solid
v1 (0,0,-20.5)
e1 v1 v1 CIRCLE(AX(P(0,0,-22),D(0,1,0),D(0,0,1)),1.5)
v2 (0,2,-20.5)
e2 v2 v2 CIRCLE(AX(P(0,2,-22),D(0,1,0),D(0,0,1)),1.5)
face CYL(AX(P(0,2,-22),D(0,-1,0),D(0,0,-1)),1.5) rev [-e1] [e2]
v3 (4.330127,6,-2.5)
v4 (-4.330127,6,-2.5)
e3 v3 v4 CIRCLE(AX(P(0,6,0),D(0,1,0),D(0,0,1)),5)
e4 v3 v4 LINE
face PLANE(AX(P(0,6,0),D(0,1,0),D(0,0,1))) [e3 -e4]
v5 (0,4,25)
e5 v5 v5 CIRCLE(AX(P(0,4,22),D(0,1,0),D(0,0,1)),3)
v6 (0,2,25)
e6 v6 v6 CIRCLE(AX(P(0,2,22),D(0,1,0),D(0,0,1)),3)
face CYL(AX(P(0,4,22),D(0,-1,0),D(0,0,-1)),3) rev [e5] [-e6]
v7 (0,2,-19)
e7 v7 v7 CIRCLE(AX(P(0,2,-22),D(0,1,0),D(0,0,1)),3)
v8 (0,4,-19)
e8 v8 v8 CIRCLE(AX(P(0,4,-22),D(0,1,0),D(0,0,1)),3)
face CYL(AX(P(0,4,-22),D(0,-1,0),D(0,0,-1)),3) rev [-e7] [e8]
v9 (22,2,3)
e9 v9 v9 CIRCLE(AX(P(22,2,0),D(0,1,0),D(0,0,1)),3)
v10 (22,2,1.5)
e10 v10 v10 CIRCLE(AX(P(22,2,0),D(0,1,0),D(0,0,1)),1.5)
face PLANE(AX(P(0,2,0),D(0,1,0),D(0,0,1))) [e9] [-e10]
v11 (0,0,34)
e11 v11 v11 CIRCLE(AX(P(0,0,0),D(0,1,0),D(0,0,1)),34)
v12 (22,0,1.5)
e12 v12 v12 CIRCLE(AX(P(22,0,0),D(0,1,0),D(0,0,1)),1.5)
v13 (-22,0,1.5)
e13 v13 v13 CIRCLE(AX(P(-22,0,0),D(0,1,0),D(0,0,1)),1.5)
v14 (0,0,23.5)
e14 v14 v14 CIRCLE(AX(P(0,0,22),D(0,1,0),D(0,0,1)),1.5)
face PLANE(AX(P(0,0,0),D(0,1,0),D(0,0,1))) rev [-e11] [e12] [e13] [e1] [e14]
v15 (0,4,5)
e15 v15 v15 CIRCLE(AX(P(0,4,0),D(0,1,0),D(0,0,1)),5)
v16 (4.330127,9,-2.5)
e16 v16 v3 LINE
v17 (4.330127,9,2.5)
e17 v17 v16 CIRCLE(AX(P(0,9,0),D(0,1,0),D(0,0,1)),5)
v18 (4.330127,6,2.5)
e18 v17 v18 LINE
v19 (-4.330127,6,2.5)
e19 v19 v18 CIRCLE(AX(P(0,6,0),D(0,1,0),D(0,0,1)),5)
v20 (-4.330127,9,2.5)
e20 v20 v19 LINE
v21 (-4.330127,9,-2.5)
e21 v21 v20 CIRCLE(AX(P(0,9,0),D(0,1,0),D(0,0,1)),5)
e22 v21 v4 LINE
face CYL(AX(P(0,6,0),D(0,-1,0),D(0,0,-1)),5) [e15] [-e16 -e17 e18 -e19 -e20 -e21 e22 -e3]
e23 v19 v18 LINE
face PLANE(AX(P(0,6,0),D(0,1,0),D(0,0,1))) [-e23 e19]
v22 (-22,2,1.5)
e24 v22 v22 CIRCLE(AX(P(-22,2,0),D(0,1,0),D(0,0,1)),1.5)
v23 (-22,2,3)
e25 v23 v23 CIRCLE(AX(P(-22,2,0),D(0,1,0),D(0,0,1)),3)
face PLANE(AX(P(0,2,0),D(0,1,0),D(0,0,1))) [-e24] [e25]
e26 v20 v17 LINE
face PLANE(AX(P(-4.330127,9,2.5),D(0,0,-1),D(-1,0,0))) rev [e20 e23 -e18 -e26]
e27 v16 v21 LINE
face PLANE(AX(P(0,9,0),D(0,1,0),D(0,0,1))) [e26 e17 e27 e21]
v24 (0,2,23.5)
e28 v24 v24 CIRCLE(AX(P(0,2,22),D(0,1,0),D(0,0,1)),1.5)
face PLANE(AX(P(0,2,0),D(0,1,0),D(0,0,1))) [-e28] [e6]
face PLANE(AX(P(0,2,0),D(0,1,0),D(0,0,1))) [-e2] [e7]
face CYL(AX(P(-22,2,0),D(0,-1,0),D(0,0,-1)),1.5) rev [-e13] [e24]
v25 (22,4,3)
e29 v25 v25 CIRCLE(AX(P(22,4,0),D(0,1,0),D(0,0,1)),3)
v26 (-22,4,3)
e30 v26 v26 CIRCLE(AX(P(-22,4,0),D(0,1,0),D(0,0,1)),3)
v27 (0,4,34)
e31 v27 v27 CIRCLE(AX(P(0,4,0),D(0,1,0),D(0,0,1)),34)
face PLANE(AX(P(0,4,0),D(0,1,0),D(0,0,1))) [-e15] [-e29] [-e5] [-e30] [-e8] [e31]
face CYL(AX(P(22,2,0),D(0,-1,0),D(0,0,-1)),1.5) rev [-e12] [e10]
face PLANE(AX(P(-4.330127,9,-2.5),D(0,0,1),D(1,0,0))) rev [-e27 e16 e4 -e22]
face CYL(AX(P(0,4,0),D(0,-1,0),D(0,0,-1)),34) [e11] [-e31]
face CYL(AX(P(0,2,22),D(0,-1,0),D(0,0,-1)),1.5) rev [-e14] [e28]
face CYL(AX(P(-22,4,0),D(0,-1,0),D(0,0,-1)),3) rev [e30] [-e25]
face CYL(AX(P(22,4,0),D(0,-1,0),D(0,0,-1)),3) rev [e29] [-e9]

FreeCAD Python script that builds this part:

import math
import FreeCAD as App
import Part
import Sketcher
from FreeCAD import Vector
Q = App.Units.Quantity

doc = App.newDocument("Part")
body = doc.addObject("PartDesign::Body", "Body")

# Sketch on XZ plane
sketch1 = body.newObject("Sketcher::SketchObject", "Sketch")
sketch1.AttachmentSupport = (doc.getObject("XZ_Plane"), [""])
sketch1.MapMode = "FlatFace"
sketch1.addGeometry(Part.Circle(Vector(0, 0, 0), Vector(0, 0, 1), 34), False)
sketch1.addGeometry(Part.Circle(Vector(0, 22, 0), Vector(0, 0, 1), 3), False)
sketch1.addGeometry(Part.Circle(Vector(-22, 0, 0), Vector(0, 0, 1), 3), False)
sketch1.addGeometry(Part.Circle(Vector(22, 0, 0), Vector(0, 0, 1), 3), False)
sketch1.addGeometry(Part.Circle(Vector(0, -22, 0), Vector(0, 0, 1), 3), False)
sketch1.addConstraint(Sketcher.Constraint("Coincident", 0, 3, -1, 1))
sketch1.addConstraint(Sketcher.Constraint("Equal", 1, 2))
sketch1.addConstraint(Sketcher.Constraint("Equal", 2, 3))
sketch1.addConstraint(Sketcher.Constraint("Equal", 3, 4))
sketch1.addConstraint(Sketcher.Constraint("Symmetric", 2, 3, 3, 3, -1, 1))
sketch1.addConstraint(Sketcher.Constraint("Symmetric", 1, 3, 4, 3, -1, 1))
sketch1.addConstraint(Sketcher.Constraint("PointOnObject", 1, 3, -2))
sketch1.addConstraint(Sketcher.Constraint("PointOnObject", 2, 3, -1))
sketch1.addConstraint(Sketcher.Constraint("Diameter", 0, Q("68 mm")))
sketch1.addConstraint(Sketcher.Constraint("Diameter", 1, Q("6 mm")))
sketch1.addConstraint(Sketcher.Constraint("DistanceY", -1, 1, 1, 3, Q("22 mm")))
sketch1.addConstraint(Sketcher.Constraint("DistanceX", 2, 3, -1, 1, Q("22 mm")))
pad1 = body.newObject("PartDesign::Pad", "Pad")
pad1.Profile = sketch1
pad1.Length = 4
pad1.Reversed = True

# Sketch on XZ plane
sketch2 = body.newObject("Sketcher::SketchObject", "Sketch001")
sketch2.AttachmentSupport = (doc.getObject("XZ_Plane"), [""])
sketch2.MapMode = "FlatFace"
sketch2.addGeometry(Part.Circle(Vector(0, -22, 0), Vector(0, 0, 1), 3), False)
sketch2.addGeometry(Part.Circle(Vector(0, -22, 0), Vector(0, 0, 1), 1.5), False)
sketch2.addGeometry(Part.Circle(Vector(22, 0, 0), Vector(0, 0, 1), 3), False)
sketch2.addGeometry(Part.Circle(Vector(22, 0, 0), Vector(0, 0, 1), 1.5), False)
sketch2.addGeometry(Part.Circle(Vector(0, 22, 0), Vector(0, 0, 1), 3), False)
sketch2.addGeometry(Part.Circle(Vector(0, 22, 0), Vector(0, 0, 1), 1.5), False)
sketch2.addGeometry(Part.Circle(Vector(-22, 0, 0), Vector(0, 0, 1), 3), False)
sketch2.addGeometry(Part.Circle(Vector(-22, 0, 0), Vector(0, 0, 1), 1.5), False)
sketch2.addConstraint(Sketcher.Constraint("Coincident", 1, 3, 0, 3))
sketch2.addConstraint(Sketcher.Constraint("Coincident", 3, 3, 2, 3))
sketch2.addConstraint(Sketcher.Constraint("Coincident", 5, 3, 4, 3))
sketch2.addConstraint(Sketcher.Constraint("Coincident", 7, 3, 6, 3))
sketch2.addConstraint(Sketcher.Constraint("Equal", 0, 2))
sketch2.addConstraint(Sketcher.Constraint("Equal", 1, 3))
sketch2.addConstraint(Sketcher.Constraint("Equal", 2, 4))
sketch2.addConstraint(Sketcher.Constraint("Equal", 3, 5))
sketch2.addConstraint(Sketcher.Constraint("Equal", 4, 6))
sketch2.addConstraint(Sketcher.Constraint("Equal", 5, 7))
sketch2.addConstraint(Sketcher.Constraint("Symmetric", 0, 3, 4, 3, -1, 1))
sketch2.addConstraint(Sketcher.Constraint("Symmetric", 2, 3, 6, 3, -1, 1))
sketch2.addConstraint(Sketcher.Constraint("PointOnObject", 0, 3, -2))
sketch2.addConstraint(Sketcher.Constraint("PointOnObject", 2, 3, -1))
sketch2.addConstraint(Sketcher.Constraint("Diameter", 0, Q("6 mm")))
sketch2.addConstraint(Sketcher.Constraint("Diameter", 1, Q("3 mm")))
sketch2.addConstraint(Sketcher.Constraint("DistanceY", 0, 3, -1, 1, Q("22 mm")))
sketch2.addConstraint(Sketcher.Constraint("DistanceX", -1, 1, 2, 3, Q("22 mm")))
pad2 = body.newObject("PartDesign::Pad", "Pad001")
pad2.Profile = sketch2
pad2.Length = 2
pad2.Reversed = True

# Sketch on XZ plane
sketch3 = body.newObject("Sketcher::SketchObject", "Sketch002")
sketch3.AttachmentSupport = (doc.getObject("XZ_Plane"), [""])
sketch3.MapMode = "FlatFace"
sketch3.AttachmentOffset = App.Placement(Vector(0, 0, -4), App.Rotation())
sketch3.addGeometry(Part.Circle(Vector(0, 0, 0), Vector(0, 0, 1), 5), False)
sketch3.addConstraint(Sketcher.Constraint("Coincident", 0, 3, -1, 1))
sketch3.addConstraint(Sketcher.Constraint("Diameter", 0, Q("10 mm")))
pad3 = body.newObject("PartDesign::Pad", "Pad002")
pad3.Profile = sketch3
pad3.Length = 2
pad3.Reversed = True

# Sketch on XZ plane
sketch4 = body.newObject("Sketcher::SketchObject", "Sketch003")
sketch4.AttachmentSupport = (doc.getObject("XZ_Plane"), [""])
sketch4.MapMode = "FlatFace"
sketch4.AttachmentOffset = App.Placement(Vector(0, 0, -6), App.Rotation())
sketch4.addGeometry(Part.LineSegment(Vector(4.330127, -2.5, 0), Vector(-4.330127, -2.5, 0)), False)
sketch4.addGeometry(Part.ArcOfCircle(Part.Circle(Vector(0, 0, 0), Vector(0, 0, 1), 5), math.radians(149.999999), math.radians(210.000001)), False)
sketch4.addGeometry(Part.LineSegment(Vector(-4.330127, 2.5, 0), Vector(4.330127, 2.5, 0)), False)
sketch4.addGeometry(Part.ArcOfCircle(Part.Circle(Vector(0, 0, 0), Vector(0, 0, 1), 5), math.radians(-30.000001), math.radians(30.000001)), False)
sketch4.addConstraint(Sketcher.Constraint("Coincident", 0, 2, 1, 2))
sketch4.addConstraint(Sketcher.Constraint("Coincident", 1, 1, 2, 1))
sketch4.addConstraint(Sketcher.Constraint("Coincident", 2, 2, 3, 2))
sketch4.addConstraint(Sketcher.Constraint("Coincident", 3, 1, 0, 1))
sketch4.addConstraint(Sketcher.Constraint("Horizontal", 0))
sketch4.addConstraint(Sketcher.Constraint("Horizontal", 2))
sketch4.addConstraint(Sketcher.Constraint("Coincident", 1, 3, -1, 1))
sketch4.addConstraint(Sketcher.Constraint("Coincident", 3, 3, -1, 1))
sketch4.addConstraint(Sketcher.Constraint("Equal", 1, 3))
sketch4.addConstraint(Sketcher.Constraint("Vertical", 0, 2, 1, 1))
sketch4.addConstraint(Sketcher.Constraint("Radius", 1, Q("5 mm")))
sketch4.addConstraint(Sketcher.Constraint("DistanceY", 0, 2, 1, 1, Q("5 mm")))
pad4 = body.newObject("PartDesign::Pad", "Pad003")
pad4.Profile = sketch4
pad4.Length = 3
pad4.Reversed = True

doc.recompute()
